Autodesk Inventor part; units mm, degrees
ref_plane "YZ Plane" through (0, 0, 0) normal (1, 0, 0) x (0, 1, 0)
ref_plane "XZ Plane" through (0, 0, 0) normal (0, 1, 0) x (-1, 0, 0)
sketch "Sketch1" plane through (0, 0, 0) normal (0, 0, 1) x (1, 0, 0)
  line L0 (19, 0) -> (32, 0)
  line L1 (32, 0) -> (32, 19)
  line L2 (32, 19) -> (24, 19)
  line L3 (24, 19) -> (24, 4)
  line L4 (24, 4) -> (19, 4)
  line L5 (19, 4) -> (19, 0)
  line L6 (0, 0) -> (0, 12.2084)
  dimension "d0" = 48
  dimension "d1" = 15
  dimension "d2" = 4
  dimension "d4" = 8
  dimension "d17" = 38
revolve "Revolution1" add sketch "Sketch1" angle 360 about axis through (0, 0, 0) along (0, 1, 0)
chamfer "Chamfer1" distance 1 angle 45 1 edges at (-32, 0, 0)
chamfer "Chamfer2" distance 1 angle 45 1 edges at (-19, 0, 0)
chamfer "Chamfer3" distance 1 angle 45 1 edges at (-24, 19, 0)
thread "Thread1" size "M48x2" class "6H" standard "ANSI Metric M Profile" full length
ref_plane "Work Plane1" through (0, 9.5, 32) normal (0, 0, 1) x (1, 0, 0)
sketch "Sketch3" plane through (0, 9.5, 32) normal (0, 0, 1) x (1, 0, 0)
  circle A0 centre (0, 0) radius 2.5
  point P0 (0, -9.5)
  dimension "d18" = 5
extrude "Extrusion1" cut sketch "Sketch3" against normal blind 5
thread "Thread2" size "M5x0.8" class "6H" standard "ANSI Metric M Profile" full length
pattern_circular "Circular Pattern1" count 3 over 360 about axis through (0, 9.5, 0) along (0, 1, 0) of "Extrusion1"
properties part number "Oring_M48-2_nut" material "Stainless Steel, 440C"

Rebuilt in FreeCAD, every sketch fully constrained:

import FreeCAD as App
import Part
import Sketcher
Q = App.Units.Quantity


def edges_at(feature, points):
    """Names of the edges that pass closest to the given points."""
    edges = feature.Shape.Edges
    near = lambda p: min(range(len(edges)), key=lambda i: edges[i].distToShape(Part.Vertex(*p))[0])
    return sorted({f"Edge{near(p) + 1}" for p in points})


def add_polygon(sketch, points):
    """Adds a closed chain of lines whose ends are joined by coincident constraints."""
    first, n = sketch.GeometryCount, len(points)
    for a, b in zip(points, points[1:] + points[:1]):
        sketch.addGeometry(Part.LineSegment(App.Vector(*a, 0), App.Vector(*b, 0)), False)
    for i in range(n):
        sketch.addConstraint(Sketcher.Constraint("Coincident", first + i, 2, first + (i + 1) % n, 1))

doc = App.newDocument("Part")
body = doc.addObject("PartDesign::Body", "Body")

sketch1 = body.newObject("Sketcher::SketchObject", "Sketch")
sketch1.AttachmentSupport = (doc.getObject("XY_Plane"), [""])
sketch1.MapMode = "FlatFace"
add_polygon(sketch1, [(19, 4), (19, 0), (32, 0), (32, 19), (24, 19), (24, 4)])
sketch1.addConstraint([
    Sketcher.Constraint("Vertical", 0),
    Sketcher.Constraint("Horizontal", 1),
    Sketcher.Constraint("Vertical", 2),
    Sketcher.Constraint("Horizontal", 3),
    Sketcher.Constraint("Vertical", 4),
    Sketcher.Constraint("Horizontal", 5),
    Sketcher.Constraint("PointOnObject", 0, 2, -1),
    Sketcher.Constraint("DistanceX", 3, 2, 3, 1, Q("8 mm")),
    Sketcher.Constraint("DistanceY", 0, 2, 0, 1, Q("4 mm")),
    Sketcher.Constraint("DistanceY", 4, 2, 4, 1, Q("15 mm")),
    Sketcher.Constraint("DistanceX", 1, 1, 1, 2, Q("13 mm")),
    Sketcher.Constraint("DistanceX", -1, 1, 0, 2, Q("19 mm")),
])
revolution = body.newObject("PartDesign::Revolution", "Revolution")
revolution.Profile = sketch1
revolution.ReferenceAxis = (sketch1, ["V_Axis"])
revolution.Angle = 360
doc.recompute()

chamfer = body.newObject("PartDesign::Chamfer", "Chamfer")
chamfer.Base = (revolution, edges_at(revolution, [(-32, 0, 0)]))
chamfer.Size = 1
doc.recompute()

chamfer2 = body.newObject("PartDesign::Chamfer", "Chamfer001")
chamfer2.Base = (chamfer, edges_at(chamfer, [(-19, 0, 0)]))
chamfer2.Size = 1
doc.recompute()

chamfer3 = body.newObject("PartDesign::Chamfer", "Chamfer002")
chamfer3.Base = (chamfer2, edges_at(chamfer2, [(-24, 19, 0)]))
chamfer3.Size = 1

sketch2 = body.newObject("Sketcher::SketchObject", "Sketch001")
sketch2.AttachmentSupport = (doc.getObject("XY_Plane"), [""])
sketch2.MapMode = "FlatFace"
sketch2.AttachmentOffset = App.Placement(App.Vector(0, 0, 32), App.Rotation())
sketch2.addGeometry(Part.Circle(App.Vector(0, 9.5, 0), App.Vector(0, 0, 1), 2.5), False)
sketch2.addConstraint([
    Sketcher.Constraint("PointOnObject", 0, 3, -2),
    Sketcher.Constraint("Diameter", 0, Q("5 mm")),
    Sketcher.Constraint("DistanceY", -1, 1, 0, 3, Q("9.5 mm")),
])
pocket1 = body.newObject("PartDesign::Pocket", "Pocket")
pocket1.Profile = sketch2
pocket1.Length = 5
doc.recompute()

polarpattern = body.newObject("PartDesign::PolarPattern", "PolarPattern")
polarpattern.Originals = [pocket1]
polarpattern.Axis = (doc.getObject("Y_Axis"), [""])
polarpattern.Angle = 360
polarpattern.Occurrences = 3
body.Tip = polarpattern

doc.recompute()
